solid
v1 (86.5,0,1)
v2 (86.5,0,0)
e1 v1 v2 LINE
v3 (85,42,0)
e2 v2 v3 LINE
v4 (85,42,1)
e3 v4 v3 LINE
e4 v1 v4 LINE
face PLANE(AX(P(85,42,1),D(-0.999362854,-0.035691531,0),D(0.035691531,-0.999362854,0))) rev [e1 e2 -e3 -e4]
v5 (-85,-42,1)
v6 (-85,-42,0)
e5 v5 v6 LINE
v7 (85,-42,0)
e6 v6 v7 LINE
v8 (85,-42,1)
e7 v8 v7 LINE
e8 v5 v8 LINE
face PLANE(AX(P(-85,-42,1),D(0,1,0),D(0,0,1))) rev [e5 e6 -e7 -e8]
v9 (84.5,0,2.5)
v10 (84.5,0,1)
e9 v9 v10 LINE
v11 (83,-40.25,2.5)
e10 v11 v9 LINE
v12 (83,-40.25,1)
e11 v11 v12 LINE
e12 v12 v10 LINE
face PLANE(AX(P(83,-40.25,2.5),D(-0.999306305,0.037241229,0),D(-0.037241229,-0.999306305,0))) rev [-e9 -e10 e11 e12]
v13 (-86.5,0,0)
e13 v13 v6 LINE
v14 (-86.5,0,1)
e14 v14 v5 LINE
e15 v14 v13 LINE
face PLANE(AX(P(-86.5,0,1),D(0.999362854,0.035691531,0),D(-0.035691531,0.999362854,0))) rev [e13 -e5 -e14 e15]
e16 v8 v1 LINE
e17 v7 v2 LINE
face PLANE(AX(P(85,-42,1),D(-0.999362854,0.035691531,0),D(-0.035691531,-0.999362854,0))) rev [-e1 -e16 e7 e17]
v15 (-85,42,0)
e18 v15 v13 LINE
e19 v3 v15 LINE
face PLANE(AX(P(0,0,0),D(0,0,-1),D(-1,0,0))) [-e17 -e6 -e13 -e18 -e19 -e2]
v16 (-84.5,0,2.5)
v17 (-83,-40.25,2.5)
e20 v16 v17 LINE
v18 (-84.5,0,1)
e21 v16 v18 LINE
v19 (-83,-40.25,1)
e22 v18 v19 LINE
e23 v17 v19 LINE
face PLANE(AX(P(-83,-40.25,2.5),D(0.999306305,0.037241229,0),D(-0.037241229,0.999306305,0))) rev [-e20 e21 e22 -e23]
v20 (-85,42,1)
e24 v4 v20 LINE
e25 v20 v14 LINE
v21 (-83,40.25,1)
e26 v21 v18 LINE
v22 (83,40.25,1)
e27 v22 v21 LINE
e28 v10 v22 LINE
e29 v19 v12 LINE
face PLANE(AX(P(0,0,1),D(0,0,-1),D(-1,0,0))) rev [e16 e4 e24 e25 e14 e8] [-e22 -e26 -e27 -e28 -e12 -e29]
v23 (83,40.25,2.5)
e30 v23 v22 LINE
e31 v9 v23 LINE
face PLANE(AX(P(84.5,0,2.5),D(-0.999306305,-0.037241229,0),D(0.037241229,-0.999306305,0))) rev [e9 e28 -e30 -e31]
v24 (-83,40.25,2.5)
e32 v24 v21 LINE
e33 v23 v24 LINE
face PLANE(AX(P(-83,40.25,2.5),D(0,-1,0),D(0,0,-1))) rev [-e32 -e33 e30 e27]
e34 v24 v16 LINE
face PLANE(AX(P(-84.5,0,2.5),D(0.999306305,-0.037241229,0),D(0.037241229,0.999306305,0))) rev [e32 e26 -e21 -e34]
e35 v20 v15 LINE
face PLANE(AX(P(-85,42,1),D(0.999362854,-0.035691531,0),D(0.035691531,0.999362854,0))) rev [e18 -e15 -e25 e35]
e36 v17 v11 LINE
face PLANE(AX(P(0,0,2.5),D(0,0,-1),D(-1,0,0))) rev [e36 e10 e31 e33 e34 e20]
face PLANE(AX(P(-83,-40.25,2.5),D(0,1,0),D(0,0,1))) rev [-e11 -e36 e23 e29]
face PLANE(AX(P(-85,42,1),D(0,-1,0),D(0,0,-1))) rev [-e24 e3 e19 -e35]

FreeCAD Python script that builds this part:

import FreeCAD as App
import Part
import Sketcher
from FreeCAD import Vector
Q = App.Units.Quantity

doc = App.newDocument("Part")
body = doc.addObject("PartDesign::Body", "Body")

# Sketch on XY plane
sketch1 = doc.addObject("Sketcher::SketchObject", "Sketch")
body.addObject(sketch1)
sketch1.AttachmentSupport = (doc.XY_Plane, [""])
sketch1.MapMode = "FlatFace"
sketch1.addGeometry(Part.LineSegment(Vector(85, 42, 0), Vector(-85, 42, 0)), False)
sketch1.addGeometry(Part.LineSegment(Vector(-85, 42, 0), Vector(-86, 0, 0)), False)
sketch1.addGeometry(Part.LineSegment(Vector(-86, 0, 0), Vector(-85, -42, 0)), False)
sketch1.addGeometry(Part.LineSegment(Vector(-85, -42, 0), Vector(85, -42, 0)), False)
sketch1.addGeometry(Part.LineSegment(Vector(85, -42, 0), Vector(86, 0, 0)), False)
sketch1.addGeometry(Part.LineSegment(Vector(86, 0, 0), Vector(85, 42, 0)), False)
sketch1.addConstraint(Sketcher.Constraint("Coincident", 0, 2, 1, 1))
sketch1.addConstraint(Sketcher.Constraint("Coincident", 1, 2, 2, 1))
sketch1.addConstraint(Sketcher.Constraint("Coincident", 2, 2, 3, 1))
sketch1.addConstraint(Sketcher.Constraint("Coincident", 3, 2, 4, 1))
sketch1.addConstraint(Sketcher.Constraint("Coincident", 4, 2, 5, 1))
sketch1.addConstraint(Sketcher.Constraint("Coincident", 5, 2, 0, 1))
sketch1.addConstraint(Sketcher.Constraint("Horizontal", 0))
sketch1.addConstraint(Sketcher.Constraint("Horizontal", 3))
sketch1.addConstraint(Sketcher.Constraint("Symmetric", 0, 2, 3, 2, -1, 1))
sketch1.addConstraint(Sketcher.Constraint("Symmetric", 1, 2, 4, 2, -1, 1))
sketch1.addConstraint(Sketcher.Constraint("PointOnObject", 1, 2, -1))
sketch1.addConstraint(Sketcher.Constraint("Parallel", 2, 5))
sketch1.addConstraint(Sketcher.Constraint("Vertical", 0, 2, 2, 2))
sketch1.addConstraint(Sketcher.Constraint("DistanceX", 0, 2, 0, 1, Q("170 mm")))
sketch1.addConstraint(Sketcher.Constraint("DistanceY", -1, 1, 0, 2, Q("42 mm")))
sketch1.addConstraint(Sketcher.Constraint("DistanceX", 1, 2, 4, 2, Q("173 mm")))
pad1 = doc.addObject("PartDesign::Pad", "Pad")
body.addObject(pad1)
pad1.Profile = sketch1
pad1.Length = 1

# Sketch on XY plane
sketch2 = doc.addObject("Sketcher::SketchObject", "Sketch001")
body.addObject(sketch2)
sketch2.AttachmentSupport = (doc.XY_Plane, [""])
sketch2.MapMode = "FlatFace"
sketch2.AttachmentOffset = App.Placement(Vector(0, 0, 1), App.Rotation())
sketch2.addGeometry(Part.LineSegment(Vector(83, 40, 0), Vector(-83, 40, 0)), False)
sketch2.addGeometry(Part.LineSegment(Vector(-83, 40, 0), Vector(-84, 0, 0)), False)
sketch2.addGeometry(Part.LineSegment(Vector(-84, 0, 0), Vector(-83, -40, 0)), False)
sketch2.addGeometry(Part.LineSegment(Vector(-83, -40, 0), Vector(83, -40, 0)), False)
sketch2.addGeometry(Part.LineSegment(Vector(83, -40, 0), Vector(84, 0, 0)), False)
sketch2.addGeometry(Part.LineSegment(Vector(84, 0, 0), Vector(83, 40, 0)), False)
sketch2.addConstraint(Sketcher.Constraint("Coincident", 0, 2, 1, 1))
sketch2.addConstraint(Sketcher.Constraint("Coincident", 1, 2, 2, 1))
sketch2.addConstraint(Sketcher.Constraint("Coincident", 2, 2, 3, 1))
sketch2.addConstraint(Sketcher.Constraint("Coincident", 3, 2, 4, 1))
sketch2.addConstraint(Sketcher.Constraint("Coincident", 4, 2, 5, 1))
sketch2.addConstraint(Sketcher.Constraint("Coincident", 5, 2, 0, 1))
sketch2.addConstraint(Sketcher.Constraint("Horizontal", 0))
sketch2.addConstraint(Sketcher.Constraint("Horizontal", 3))
sketch2.addConstraint(Sketcher.Constraint("Symmetric", 0, 2, 3, 2, -1, 1))
sketch2.addConstraint(Sketcher.Constraint("Symmetric", 1, 2, 4, 2, -1, 1))
sketch2.addConstraint(Sketcher.Constraint("PointOnObject", 1, 2, -1))
sketch2.addConstraint(Sketcher.Constraint("Parallel", 2, 5))
sketch2.addConstraint(Sketcher.Constraint("Vertical", 0, 2, 2, 2))
sketch2.addConstraint(Sketcher.Constraint("DistanceX", 0, 2, 0, 1, Q("166 mm")))
sketch2.addConstraint(Sketcher.Constraint("DistanceX", 1, 2, 4, 2, Q("169 mm")))
sketch2.addConstraint(Sketcher.Constraint("DistanceY", 2, 2, 0, 2, Q("80.5 mm")))
pad2 = doc.addObject("PartDesign::Pad", "Pad001")
body.addObject(pad2)
pad2.Profile = sketch2
pad2.Length = 1.5

doc.recompute()
